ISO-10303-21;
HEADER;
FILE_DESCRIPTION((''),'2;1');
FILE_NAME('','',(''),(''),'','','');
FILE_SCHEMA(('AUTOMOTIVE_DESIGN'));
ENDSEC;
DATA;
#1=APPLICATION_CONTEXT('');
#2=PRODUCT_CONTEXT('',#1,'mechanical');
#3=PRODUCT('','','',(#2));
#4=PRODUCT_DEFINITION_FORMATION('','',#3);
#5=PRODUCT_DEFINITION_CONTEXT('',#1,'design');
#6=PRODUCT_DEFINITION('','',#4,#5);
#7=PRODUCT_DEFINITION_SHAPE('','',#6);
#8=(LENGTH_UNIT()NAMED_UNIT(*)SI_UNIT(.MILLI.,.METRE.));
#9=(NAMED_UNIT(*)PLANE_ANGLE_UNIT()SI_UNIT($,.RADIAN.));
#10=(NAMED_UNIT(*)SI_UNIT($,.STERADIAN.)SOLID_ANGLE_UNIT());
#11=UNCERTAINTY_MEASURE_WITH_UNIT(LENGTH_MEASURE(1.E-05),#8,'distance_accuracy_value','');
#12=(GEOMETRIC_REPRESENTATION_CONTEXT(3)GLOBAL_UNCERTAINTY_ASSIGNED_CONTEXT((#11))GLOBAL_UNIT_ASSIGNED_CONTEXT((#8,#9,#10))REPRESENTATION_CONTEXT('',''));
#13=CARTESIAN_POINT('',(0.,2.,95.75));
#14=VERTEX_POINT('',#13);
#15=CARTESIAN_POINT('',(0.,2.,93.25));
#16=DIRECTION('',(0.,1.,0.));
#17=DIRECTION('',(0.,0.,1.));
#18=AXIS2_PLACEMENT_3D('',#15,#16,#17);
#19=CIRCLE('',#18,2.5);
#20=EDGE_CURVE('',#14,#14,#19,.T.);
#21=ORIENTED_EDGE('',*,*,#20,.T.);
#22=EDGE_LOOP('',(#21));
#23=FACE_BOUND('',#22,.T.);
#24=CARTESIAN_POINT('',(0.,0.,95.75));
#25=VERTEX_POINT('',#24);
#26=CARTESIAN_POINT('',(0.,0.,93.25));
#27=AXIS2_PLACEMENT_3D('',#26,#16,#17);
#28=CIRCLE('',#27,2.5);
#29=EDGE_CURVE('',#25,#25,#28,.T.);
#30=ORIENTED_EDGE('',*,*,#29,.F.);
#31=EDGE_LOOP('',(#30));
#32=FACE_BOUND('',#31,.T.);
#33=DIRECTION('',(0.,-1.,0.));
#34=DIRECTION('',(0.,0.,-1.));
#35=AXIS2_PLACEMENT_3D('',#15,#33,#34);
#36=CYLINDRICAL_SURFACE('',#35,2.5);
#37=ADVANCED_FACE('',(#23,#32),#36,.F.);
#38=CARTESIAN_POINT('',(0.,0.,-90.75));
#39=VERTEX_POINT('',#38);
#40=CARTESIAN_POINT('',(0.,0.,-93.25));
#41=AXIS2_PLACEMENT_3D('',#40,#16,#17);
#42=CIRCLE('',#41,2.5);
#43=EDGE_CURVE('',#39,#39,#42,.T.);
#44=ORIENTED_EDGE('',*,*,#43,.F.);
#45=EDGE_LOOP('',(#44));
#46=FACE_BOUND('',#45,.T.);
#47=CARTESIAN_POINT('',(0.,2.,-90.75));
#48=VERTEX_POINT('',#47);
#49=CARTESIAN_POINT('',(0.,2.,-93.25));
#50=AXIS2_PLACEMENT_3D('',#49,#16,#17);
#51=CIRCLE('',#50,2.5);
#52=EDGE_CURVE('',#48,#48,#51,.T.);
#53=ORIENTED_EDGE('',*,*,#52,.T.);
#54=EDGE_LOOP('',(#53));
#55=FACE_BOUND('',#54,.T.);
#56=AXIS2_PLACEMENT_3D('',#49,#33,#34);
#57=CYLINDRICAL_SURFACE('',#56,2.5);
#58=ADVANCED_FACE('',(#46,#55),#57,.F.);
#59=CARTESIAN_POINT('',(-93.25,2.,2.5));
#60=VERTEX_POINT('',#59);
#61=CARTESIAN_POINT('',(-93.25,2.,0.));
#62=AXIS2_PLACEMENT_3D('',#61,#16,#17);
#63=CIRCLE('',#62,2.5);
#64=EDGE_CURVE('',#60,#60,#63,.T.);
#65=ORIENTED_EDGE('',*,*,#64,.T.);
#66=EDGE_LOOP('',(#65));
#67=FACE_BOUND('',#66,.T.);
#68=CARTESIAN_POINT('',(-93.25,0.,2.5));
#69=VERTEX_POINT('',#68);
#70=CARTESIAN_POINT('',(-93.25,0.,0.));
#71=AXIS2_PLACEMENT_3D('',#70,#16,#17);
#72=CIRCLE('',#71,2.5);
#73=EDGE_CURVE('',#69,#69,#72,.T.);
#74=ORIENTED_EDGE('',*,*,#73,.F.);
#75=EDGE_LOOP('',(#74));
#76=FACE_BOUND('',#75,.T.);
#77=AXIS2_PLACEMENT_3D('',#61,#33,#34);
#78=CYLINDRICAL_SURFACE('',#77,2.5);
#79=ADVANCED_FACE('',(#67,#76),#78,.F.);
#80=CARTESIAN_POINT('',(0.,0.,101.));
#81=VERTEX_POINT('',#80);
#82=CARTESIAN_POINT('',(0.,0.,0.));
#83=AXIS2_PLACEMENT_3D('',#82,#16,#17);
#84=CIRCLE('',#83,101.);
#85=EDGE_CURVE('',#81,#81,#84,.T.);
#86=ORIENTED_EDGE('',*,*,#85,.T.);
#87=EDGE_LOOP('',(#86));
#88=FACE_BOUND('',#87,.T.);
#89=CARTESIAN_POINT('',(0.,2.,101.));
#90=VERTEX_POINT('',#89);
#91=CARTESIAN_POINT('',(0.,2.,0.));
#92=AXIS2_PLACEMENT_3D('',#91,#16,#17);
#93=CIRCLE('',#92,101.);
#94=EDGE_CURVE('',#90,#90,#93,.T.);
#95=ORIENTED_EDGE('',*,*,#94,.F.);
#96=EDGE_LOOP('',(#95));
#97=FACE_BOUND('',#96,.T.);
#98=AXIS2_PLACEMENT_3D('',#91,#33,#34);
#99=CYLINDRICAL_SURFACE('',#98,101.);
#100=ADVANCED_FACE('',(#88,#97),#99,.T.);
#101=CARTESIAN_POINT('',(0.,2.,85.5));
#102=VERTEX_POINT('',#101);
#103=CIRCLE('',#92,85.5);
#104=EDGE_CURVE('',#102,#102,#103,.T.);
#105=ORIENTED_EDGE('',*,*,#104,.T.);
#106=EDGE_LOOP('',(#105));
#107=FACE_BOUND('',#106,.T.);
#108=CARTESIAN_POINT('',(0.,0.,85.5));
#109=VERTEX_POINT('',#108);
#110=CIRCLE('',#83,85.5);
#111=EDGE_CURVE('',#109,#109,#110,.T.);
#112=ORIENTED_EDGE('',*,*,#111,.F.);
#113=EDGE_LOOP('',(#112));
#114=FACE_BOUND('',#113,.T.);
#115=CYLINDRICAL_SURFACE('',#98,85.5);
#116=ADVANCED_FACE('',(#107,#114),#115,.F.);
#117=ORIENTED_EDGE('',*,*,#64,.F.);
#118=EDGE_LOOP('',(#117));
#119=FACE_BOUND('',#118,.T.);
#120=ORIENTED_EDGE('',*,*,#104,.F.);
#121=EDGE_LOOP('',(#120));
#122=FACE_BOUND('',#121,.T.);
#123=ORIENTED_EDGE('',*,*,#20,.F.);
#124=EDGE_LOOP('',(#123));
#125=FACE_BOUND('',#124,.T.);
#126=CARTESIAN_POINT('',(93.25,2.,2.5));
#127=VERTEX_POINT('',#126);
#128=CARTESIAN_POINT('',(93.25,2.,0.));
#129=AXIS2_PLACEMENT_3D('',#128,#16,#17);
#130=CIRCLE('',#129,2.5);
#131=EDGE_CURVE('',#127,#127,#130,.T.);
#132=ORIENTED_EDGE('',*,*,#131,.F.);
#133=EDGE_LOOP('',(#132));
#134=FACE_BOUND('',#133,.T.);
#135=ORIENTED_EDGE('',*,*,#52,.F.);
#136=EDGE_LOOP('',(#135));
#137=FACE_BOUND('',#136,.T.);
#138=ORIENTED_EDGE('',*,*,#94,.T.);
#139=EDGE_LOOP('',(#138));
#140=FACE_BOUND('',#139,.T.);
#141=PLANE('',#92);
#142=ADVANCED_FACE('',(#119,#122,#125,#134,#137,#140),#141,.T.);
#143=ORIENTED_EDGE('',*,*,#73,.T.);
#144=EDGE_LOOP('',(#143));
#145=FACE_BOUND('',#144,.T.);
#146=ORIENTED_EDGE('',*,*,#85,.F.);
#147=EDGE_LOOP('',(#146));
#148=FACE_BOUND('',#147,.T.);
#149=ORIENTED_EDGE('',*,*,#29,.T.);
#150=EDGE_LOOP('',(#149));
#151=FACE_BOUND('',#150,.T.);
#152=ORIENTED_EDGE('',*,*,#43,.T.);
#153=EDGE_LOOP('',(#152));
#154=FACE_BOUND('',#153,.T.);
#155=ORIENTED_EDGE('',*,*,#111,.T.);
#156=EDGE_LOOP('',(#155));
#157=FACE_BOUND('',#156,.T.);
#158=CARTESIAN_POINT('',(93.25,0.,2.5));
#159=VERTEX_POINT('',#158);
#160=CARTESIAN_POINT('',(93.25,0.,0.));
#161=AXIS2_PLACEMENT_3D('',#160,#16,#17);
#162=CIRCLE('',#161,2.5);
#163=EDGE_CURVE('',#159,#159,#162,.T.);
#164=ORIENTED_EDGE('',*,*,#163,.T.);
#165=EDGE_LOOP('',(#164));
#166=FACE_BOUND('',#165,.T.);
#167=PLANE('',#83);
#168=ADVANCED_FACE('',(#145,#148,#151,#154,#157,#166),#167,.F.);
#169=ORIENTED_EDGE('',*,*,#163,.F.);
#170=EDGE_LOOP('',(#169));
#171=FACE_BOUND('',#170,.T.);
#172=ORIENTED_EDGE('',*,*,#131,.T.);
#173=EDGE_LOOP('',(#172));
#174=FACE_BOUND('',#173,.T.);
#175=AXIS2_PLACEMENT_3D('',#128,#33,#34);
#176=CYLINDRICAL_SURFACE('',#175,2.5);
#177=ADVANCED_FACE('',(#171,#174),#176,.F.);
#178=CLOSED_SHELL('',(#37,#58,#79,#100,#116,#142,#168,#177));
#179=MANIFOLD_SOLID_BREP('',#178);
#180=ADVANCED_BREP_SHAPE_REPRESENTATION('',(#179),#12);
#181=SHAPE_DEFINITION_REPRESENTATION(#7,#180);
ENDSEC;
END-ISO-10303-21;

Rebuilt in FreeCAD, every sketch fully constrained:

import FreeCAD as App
import Part
import Sketcher

doc = App.newDocument("Part")
body = doc.addObject("PartDesign::Body", "Body")

# Sketch on XZ plane
sketch1 = body.newObject("Sketcher::SketchObject", "Sketch")
sketch1.AttachmentSupport = (doc.getObject("XZ_Plane"), [""])
sketch1.MapMode = "FlatFace"
sketch1.addGeometry(Part.Circle(App.Vector(0, 0, 0), App.Vector(0, 0, 1), 101), False)
sketch1.addGeometry(Part.Circle(App.Vector(0, -93.2, 0), App.Vector(0, 0, 1), 2.5), False)
sketch1.addGeometry(Part.Circle(App.Vector(-93.2, 0, 0), App.Vector(0, 0, 1), 2.5), False)
sketch1.addGeometry(Part.Circle(App.Vector(93.2, 0, 0), App.Vector(0, 0, 1), 2.5), False)
sketch1.addGeometry(Part.Circle(App.Vector(0, 0, 0), App.Vector(0, 0, 1), 85.5), False)
sketch1.addGeometry(Part.Circle(App.Vector(0, 93.2, 0), App.Vector(0, 0, 1), 2.5), False)
sketch1.addConstraint(Sketcher.Constraint("Coincident", 0, 3, -1, 1))
sketch1.addConstraint(Sketcher.Constraint("Coincident", 4, 3, -1, 1))
sketch1.addConstraint(Sketcher.Constraint("Equal", 1, 2))
sketch1.addConstraint(Sketcher.Constraint("Equal", 2, 3))
sketch1.addConstraint(Sketcher.Constraint("Equal", 3, 5))
sketch1.addConstraint(Sketcher.Constraint("Symmetric", 2, 3, 3, 3, -1, 1))
sketch1.addConstraint(Sketcher.Constraint("Symmetric", 1, 3, 5, 3, -1, 1))
sketch1.addConstraint(Sketcher.Constraint("PointOnObject", 1, 3, -2))
sketch1.addConstraint(Sketcher.Constraint("PointOnObject", 2, 3, -1))
sketch1.addConstraint(Sketcher.Constraint("Diameter", 0, 202.0))
sketch1.addConstraint(Sketcher.Constraint("Diameter", 1, 5.0))
sketch1.addConstraint(Sketcher.Constraint("Diameter", 4, 171.0))
sketch1.addConstraint(Sketcher.Constraint("DistanceX", 2, 3, 3, 3, 186.5))
sketch1.addConstraint(Sketcher.Constraint("DistanceY", 1, 3, 5, 3, 186.5))
pad1 = body.newObject("PartDesign::Pad", "Pad")
pad1.Profile = sketch1
pad1.Length = 2
pad1.Reversed = True

doc.recompute()
